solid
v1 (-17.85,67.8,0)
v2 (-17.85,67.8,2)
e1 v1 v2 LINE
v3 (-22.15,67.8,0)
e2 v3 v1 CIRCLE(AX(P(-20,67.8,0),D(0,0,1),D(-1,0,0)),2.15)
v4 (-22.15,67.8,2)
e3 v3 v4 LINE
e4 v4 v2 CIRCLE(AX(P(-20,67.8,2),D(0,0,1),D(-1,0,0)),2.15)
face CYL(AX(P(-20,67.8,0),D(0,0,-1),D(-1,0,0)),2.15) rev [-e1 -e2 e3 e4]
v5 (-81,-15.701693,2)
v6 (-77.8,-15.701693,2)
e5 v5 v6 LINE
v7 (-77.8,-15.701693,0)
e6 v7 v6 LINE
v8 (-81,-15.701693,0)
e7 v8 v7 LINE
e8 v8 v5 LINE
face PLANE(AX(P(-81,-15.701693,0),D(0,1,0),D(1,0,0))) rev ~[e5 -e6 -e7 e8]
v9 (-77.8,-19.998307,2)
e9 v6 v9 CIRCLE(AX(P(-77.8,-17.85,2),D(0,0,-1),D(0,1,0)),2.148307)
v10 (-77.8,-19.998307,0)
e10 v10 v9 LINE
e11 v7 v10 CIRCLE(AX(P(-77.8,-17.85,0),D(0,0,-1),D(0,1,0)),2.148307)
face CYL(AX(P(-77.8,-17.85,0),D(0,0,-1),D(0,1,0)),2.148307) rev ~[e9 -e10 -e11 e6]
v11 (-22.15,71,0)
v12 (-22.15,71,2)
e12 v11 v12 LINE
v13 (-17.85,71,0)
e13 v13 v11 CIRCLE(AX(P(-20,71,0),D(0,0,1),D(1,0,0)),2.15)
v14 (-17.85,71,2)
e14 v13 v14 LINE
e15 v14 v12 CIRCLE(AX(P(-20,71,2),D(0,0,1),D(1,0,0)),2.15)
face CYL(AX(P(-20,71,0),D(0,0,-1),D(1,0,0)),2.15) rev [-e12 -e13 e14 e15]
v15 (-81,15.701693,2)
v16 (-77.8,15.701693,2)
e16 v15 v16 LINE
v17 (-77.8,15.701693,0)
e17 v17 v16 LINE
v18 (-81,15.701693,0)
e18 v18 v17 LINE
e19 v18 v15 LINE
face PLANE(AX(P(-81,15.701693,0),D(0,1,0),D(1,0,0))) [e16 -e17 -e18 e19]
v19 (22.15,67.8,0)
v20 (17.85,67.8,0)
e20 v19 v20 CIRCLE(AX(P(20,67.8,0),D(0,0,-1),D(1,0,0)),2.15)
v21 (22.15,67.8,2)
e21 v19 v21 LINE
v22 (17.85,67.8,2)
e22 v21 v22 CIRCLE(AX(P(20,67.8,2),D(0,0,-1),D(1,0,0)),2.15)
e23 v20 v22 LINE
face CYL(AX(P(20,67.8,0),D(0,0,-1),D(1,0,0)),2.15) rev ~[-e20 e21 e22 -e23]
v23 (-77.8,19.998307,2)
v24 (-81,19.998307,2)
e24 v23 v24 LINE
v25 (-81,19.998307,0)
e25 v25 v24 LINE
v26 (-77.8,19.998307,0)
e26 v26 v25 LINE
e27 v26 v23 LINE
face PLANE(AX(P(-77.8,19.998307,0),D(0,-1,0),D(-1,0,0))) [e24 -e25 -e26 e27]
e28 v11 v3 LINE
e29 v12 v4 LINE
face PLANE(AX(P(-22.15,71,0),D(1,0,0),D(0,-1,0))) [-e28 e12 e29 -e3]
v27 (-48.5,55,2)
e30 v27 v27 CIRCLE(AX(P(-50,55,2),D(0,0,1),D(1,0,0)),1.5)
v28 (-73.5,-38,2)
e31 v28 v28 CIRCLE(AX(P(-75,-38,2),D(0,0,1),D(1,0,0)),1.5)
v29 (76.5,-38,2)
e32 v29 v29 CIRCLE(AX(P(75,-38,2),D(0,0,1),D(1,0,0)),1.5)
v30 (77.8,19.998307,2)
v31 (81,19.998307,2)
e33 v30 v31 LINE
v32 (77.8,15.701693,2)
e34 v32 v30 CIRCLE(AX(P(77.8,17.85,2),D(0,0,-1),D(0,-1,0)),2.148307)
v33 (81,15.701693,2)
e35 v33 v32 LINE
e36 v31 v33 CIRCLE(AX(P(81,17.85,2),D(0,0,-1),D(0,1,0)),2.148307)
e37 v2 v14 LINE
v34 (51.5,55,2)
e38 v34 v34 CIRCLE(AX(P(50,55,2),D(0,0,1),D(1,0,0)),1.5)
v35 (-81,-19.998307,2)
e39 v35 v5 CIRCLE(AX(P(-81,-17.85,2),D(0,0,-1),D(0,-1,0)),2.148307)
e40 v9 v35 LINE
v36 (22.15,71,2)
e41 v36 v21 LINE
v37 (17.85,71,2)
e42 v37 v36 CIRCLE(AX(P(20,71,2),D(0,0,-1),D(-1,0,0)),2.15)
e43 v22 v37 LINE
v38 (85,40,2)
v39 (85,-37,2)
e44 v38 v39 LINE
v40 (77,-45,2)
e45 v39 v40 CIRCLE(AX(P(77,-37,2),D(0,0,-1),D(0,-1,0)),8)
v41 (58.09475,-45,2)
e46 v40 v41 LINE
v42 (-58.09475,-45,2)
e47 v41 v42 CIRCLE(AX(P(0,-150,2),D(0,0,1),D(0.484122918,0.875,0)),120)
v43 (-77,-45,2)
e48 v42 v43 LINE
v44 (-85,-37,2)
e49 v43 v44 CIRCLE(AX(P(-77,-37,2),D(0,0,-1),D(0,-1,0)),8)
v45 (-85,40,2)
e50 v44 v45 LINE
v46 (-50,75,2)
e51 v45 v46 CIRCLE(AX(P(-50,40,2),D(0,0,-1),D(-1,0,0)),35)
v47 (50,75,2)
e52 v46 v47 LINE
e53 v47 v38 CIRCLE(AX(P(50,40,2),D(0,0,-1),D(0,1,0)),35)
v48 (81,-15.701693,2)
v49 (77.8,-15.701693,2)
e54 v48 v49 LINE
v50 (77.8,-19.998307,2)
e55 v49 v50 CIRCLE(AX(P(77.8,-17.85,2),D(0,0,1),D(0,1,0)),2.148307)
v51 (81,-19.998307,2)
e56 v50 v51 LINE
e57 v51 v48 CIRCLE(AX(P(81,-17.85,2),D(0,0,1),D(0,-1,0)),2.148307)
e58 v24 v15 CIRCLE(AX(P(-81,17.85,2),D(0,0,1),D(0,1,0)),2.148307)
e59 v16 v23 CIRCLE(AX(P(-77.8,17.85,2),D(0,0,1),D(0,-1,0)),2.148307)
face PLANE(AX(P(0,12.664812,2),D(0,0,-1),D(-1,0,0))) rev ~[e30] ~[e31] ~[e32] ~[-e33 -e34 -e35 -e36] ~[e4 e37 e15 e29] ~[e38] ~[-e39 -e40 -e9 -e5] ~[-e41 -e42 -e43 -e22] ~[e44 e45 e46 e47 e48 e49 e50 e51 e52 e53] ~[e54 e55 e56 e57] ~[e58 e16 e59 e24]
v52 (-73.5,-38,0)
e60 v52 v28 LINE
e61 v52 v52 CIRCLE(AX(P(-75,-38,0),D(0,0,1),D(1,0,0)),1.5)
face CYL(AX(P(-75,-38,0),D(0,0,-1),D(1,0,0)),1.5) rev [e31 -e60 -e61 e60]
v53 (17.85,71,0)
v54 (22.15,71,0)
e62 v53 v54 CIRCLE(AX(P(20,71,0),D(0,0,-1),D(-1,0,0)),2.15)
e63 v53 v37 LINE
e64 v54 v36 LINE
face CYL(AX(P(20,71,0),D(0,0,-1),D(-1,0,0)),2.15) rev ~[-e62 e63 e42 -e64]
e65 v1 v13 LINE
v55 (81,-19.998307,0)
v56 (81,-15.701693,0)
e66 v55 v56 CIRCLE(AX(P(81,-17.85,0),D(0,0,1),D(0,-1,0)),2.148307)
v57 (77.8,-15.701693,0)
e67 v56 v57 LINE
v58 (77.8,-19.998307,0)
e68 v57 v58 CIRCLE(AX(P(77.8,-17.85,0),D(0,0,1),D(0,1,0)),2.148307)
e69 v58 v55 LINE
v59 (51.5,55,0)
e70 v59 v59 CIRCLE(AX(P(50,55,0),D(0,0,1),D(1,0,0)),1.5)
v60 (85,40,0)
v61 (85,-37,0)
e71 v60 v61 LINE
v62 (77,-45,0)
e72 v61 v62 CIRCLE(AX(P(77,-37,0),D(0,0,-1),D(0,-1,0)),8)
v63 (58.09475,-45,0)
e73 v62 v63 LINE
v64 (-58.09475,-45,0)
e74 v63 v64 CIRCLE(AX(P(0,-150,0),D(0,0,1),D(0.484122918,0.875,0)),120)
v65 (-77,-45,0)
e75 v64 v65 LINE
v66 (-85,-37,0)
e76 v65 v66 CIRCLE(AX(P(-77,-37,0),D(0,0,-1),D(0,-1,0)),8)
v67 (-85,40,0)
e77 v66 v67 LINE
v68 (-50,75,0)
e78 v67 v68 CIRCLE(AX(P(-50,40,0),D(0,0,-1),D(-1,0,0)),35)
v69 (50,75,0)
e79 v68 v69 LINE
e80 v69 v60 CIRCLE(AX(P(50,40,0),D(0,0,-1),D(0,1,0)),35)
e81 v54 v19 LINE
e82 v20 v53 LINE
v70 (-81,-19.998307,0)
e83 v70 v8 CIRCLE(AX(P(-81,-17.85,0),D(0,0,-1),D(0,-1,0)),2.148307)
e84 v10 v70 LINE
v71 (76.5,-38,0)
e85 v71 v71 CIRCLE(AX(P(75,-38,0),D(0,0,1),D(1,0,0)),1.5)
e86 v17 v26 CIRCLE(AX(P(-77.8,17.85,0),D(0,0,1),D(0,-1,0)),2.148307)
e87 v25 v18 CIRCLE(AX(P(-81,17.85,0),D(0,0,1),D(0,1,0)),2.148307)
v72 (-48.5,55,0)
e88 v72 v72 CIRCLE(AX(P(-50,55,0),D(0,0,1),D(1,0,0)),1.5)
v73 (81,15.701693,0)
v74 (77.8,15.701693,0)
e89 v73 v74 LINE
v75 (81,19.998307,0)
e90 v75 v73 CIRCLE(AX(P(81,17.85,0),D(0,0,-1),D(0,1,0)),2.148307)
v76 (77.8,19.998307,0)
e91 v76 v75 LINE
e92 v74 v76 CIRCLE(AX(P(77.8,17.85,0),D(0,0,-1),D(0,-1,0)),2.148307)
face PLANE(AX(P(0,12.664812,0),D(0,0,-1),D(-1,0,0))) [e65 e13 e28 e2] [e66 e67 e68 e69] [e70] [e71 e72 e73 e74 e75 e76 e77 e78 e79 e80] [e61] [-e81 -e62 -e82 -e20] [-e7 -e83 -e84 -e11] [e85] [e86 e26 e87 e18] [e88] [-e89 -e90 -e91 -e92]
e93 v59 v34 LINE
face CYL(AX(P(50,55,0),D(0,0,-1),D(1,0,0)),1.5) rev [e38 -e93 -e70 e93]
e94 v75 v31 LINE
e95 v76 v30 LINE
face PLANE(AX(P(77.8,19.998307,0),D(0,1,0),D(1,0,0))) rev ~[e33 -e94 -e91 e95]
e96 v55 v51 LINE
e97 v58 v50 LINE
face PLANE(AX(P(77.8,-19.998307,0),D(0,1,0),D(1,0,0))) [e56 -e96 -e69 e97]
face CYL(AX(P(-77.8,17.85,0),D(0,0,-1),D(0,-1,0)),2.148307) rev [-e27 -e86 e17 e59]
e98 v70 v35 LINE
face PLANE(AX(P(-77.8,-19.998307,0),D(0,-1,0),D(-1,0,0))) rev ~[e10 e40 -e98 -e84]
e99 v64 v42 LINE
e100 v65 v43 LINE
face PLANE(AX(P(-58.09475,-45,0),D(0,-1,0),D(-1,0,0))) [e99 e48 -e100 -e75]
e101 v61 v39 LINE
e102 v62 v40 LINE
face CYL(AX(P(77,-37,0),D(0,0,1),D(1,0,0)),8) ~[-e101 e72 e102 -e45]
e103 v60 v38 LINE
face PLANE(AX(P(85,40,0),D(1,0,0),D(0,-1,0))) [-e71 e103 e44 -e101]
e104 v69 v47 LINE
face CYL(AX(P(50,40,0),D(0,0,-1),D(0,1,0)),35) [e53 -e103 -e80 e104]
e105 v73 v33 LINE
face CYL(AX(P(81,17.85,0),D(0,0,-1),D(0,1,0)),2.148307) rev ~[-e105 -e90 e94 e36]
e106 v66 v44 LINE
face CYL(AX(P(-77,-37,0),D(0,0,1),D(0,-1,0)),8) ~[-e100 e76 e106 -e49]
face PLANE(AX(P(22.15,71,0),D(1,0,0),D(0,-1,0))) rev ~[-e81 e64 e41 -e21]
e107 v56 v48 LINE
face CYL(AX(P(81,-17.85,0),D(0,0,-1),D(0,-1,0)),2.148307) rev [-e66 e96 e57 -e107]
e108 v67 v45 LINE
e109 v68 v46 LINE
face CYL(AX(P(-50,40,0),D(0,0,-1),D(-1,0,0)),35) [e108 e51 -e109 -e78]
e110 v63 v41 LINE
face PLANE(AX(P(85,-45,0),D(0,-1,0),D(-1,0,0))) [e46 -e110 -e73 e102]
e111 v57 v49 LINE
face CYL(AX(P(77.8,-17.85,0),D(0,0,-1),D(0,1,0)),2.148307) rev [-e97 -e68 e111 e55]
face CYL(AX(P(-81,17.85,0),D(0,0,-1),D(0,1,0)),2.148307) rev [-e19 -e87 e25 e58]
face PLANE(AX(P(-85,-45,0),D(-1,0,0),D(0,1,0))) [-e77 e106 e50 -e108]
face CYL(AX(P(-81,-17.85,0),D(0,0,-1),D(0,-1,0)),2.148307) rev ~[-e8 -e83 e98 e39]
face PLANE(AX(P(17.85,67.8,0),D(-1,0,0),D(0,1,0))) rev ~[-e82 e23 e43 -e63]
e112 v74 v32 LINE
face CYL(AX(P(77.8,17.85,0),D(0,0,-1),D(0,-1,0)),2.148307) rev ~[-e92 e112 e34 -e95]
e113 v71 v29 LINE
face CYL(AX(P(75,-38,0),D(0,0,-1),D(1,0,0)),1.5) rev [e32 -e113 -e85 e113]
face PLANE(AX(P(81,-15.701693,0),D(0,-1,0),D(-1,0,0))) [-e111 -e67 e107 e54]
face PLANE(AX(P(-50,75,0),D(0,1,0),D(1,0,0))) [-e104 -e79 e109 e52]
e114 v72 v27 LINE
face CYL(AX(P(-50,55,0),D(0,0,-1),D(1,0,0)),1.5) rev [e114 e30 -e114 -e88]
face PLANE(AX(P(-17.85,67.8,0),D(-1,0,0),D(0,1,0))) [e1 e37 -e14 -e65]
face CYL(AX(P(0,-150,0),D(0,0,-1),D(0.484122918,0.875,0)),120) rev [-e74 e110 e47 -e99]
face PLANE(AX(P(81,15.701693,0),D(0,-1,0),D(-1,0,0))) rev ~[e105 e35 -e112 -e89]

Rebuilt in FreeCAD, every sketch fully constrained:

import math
import FreeCAD as App
import Part
import Sketcher


def edges_at(feature, points):
    """Names of the edges that pass closest to the given points."""
    edges = feature.Shape.Edges
    near = lambda p: min(range(len(edges)), key=lambda i: edges[i].distToShape(Part.Vertex(*p))[0])
    return sorted({f"Edge{near(p) + 1}" for p in points})

doc = App.newDocument("Part")
body = doc.addObject("PartDesign::Body", "Body")

sketch1 = body.newObject("Sketcher::SketchObject", "Sketch")
sketch1.AttachmentSupport = (doc.getObject("XY_Plane"), [""])
sketch1.MapMode = "FlatFace"
sketch1.addGeometry([
    Part.LineSegment(App.Vector(85, -45, 0), App.Vector(85, 40, 0)),
    Part.ArcOfCircle(Part.Circle(App.Vector(50, 40, 0), App.Vector(0, 0, 1), 35), math.radians(0), math.radians(90)),
    Part.LineSegment(App.Vector(50, 75, 0), App.Vector(-50, 75, 0)),
    Part.ArcOfCircle(Part.Circle(App.Vector(-50, 40, 0), App.Vector(0, 0, 1), 35), math.radians(90), math.radians(180)),
    Part.LineSegment(App.Vector(-85, 40, 0), App.Vector(-85, -45, 0)),
    Part.LineSegment(App.Vector(-85, -45, 0), App.Vector(-58.1, -45, 0)),
    Part.ArcOfCircle(Part.Circle(App.Vector(0, -150, 0), App.Vector(0, 0, 1), 120), math.radians(61), math.radians(119)),
    Part.LineSegment(App.Vector(58.1, -45, 0), App.Vector(85, -45, 0)),
    Part.Circle(App.Vector(75, -38, 0), App.Vector(0, 0, 1), 1.5),
    Part.LineSegment(App.Vector(77.8, -15.7, 0), App.Vector(81, -15.7, 0)),
    Part.ArcOfCircle(Part.Circle(App.Vector(81, -17.9, 0), App.Vector(0, 0, 1), 2.1), math.radians(-90), math.radians(90)),
    Part.LineSegment(App.Vector(81, -20, 0), App.Vector(77.8, -20, 0)),
    Part.ArcOfCircle(Part.Circle(App.Vector(77.8, -17.9, 0), App.Vector(0, 0, 1), 2.1), math.radians(90), math.radians(270)),
    Part.Circle(App.Vector(-75, -38, 0), App.Vector(0, 0, 1), 1.5),
    Part.LineSegment(App.Vector(-81, -15.7, 0), App.Vector(-77.8, -15.7, 0)),
    Part.ArcOfCircle(Part.Circle(App.Vector(-77.8, -17.9, 0), App.Vector(0, 0, 1), 2.1), math.radians(-90), math.radians(90)),
    Part.LineSegment(App.Vector(-77.8, -20, 0), App.Vector(-81, -20, 0)),
    Part.ArcOfCircle(Part.Circle(App.Vector(-81, -17.9, 0), App.Vector(0, 0, 1), 2.1), math.radians(90), math.radians(270)),
    Part.LineSegment(App.Vector(81, 15.7, 0), App.Vector(77.8, 15.7, 0)),
    Part.ArcOfCircle(Part.Circle(App.Vector(77.8, 17.9, 0), App.Vector(0, 0, 1), 2.1), math.radians(90), math.radians(270)),
    Part.LineSegment(App.Vector(77.8, 20, 0), App.Vector(81, 20, 0)),
    Part.ArcOfCircle(Part.Circle(App.Vector(81, 17.9, 0), App.Vector(0, 0, 1), 2.1), math.radians(-90), math.radians(90)),
    Part.Circle(App.Vector(50, 55, 0), App.Vector(0, 0, 1), 1.5),
    Part.LineSegment(App.Vector(22.1, 71, 0), App.Vector(22.1, 67.8, 0)),
    Part.ArcOfCircle(Part.Circle(App.Vector(20, 67.8, 0), App.Vector(0, 0, 1), 2.1), math.radians(180), math.radians(360)),
    Part.LineSegment(App.Vector(17.9, 67.8, 0), App.Vector(17.9, 71, 0)),
    Part.ArcOfCircle(Part.Circle(App.Vector(20, 71, 0), App.Vector(0, 0, 1), 2.1), math.radians(0), math.radians(180)),
    Part.LineSegment(App.Vector(-77.8, 15.7, 0), App.Vector(-81, 15.7, 0)),
    Part.ArcOfCircle(Part.Circle(App.Vector(-81, 17.9, 0), App.Vector(0, 0, 1), 2.1), math.radians(90), math.radians(270)),
    Part.LineSegment(App.Vector(-81, 20, 0), App.Vector(-77.8, 20, 0)),
    Part.ArcOfCircle(Part.Circle(App.Vector(-77.8, 17.9, 0), App.Vector(0, 0, 1), 2.1), math.radians(-90), math.radians(90)),
    Part.LineSegment(App.Vector(-22.1, 67.8, 0), App.Vector(-22.1, 71, 0)),
    Part.ArcOfCircle(Part.Circle(App.Vector(-20, 71, 0), App.Vector(0, 0, 1), 2.1), math.radians(0), math.radians(180)),
    Part.LineSegment(App.Vector(-17.9, 71, 0), App.Vector(-17.9, 67.8, 0)),
    Part.ArcOfCircle(Part.Circle(App.Vector(-20, 67.8, 0), App.Vector(0, 0, 1), 2.1), math.radians(180), math.radians(360)),
    Part.Circle(App.Vector(-50, 55, 0), App.Vector(0, 0, 1), 1.5),
], False)
sketch1.addConstraint([
    Sketcher.Constraint("Tangent", 0, 2, 1, 1),
    Sketcher.Constraint("Tangent", 1, 2, 2, 1),
    Sketcher.Constraint("Tangent", 2, 2, 3, 1),
    Sketcher.Constraint("Tangent", 3, 2, 4, 1),
    Sketcher.Constraint("Coincident", 4, 2, 5, 1),
    Sketcher.Constraint("Coincident", 5, 2, 6, 2),
    Sketcher.Constraint("Coincident", 6, 1, 7, 1),
    Sketcher.Constraint("Coincident", 7, 2, 0, 1),
    Sketcher.Constraint("Tangent", 9, 2, 10, 2),
    Sketcher.Constraint("Tangent", 10, 1, 11, 1),
    Sketcher.Constraint("Tangent", 11, 2, 12, 2),
    Sketcher.Constraint("Tangent", 12, 1, 9, 1),
    Sketcher.Constraint("Tangent", 14, 2, 15, 2),
    Sketcher.Constraint("Tangent", 15, 1, 16, 1),
    Sketcher.Constraint("Tangent", 16, 2, 17, 2),
    Sketcher.Constraint("Tangent", 17, 1, 14, 1),
    Sketcher.Constraint("Tangent", 18, 2, 19, 2),
    Sketcher.Constraint("Tangent", 19, 1, 20, 1),
    Sketcher.Constraint("Tangent", 20, 2, 21, 2),
    Sketcher.Constraint("Tangent", 21, 1, 18, 1),
    Sketcher.Constraint("Tangent", 23, 2, 24, 2),
    Sketcher.Constraint("Tangent", 24, 1, 25, 1),
    Sketcher.Constraint("Tangent", 25, 2, 26, 2),
    Sketcher.Constraint("Tangent", 26, 1, 23, 1),
    Sketcher.Constraint("Tangent", 27, 2, 28, 2),
    Sketcher.Constraint("Tangent", 28, 1, 29, 1),
    Sketcher.Constraint("Tangent", 29, 2, 30, 2),
    Sketcher.Constraint("Tangent", 30, 1, 27, 1),
    Sketcher.Constraint("Tangent", 31, 2, 32, 2),
    Sketcher.Constraint("Tangent", 32, 1, 33, 1),
    Sketcher.Constraint("Tangent", 33, 2, 34, 2),
    Sketcher.Constraint("Tangent", 34, 1, 31, 1),
    Sketcher.Constraint("Vertical", 0),
    Sketcher.Constraint("Horizontal", 2),
    Sketcher.Constraint("Vertical", 4),
    Sketcher.Constraint("Horizontal", 5),
    Sketcher.Constraint("Horizontal", 7),
    Sketcher.Constraint("Horizontal", 9),
    Sketcher.Constraint("Horizontal", 11),
    Sketcher.Constraint("Horizontal", 14),
    Sketcher.Constraint("Horizontal", 16),
    Sketcher.Constraint("Horizontal", 18),
    Sketcher.Constraint("Horizontal", 20),
    Sketcher.Constraint("Vertical", 23),
    Sketcher.Constraint("Vertical", 25),
    Sketcher.Constraint("Horizontal", 27),
    Sketcher.Constraint("Horizontal", 29),
    Sketcher.Constraint("Vertical", 31),
    Sketcher.Constraint("Vertical", 33),
    Sketcher.Constraint("Equal", 1, 3),
    Sketcher.Constraint("Equal", 8, 13),
    Sketcher.Constraint("Equal", 12, 15),
    Sketcher.Constraint("Equal", 17, 19),
    Sketcher.Constraint("Equal", 13, 22),
    Sketcher.Constraint("Equal", 21, 28),
    Sketcher.Constraint("Equal", 26, 32),
    Sketcher.Constraint("Equal", 22, 35),
    Sketcher.Constraint("Symmetric", 15, 3, 19, 3, -1, 1),
    Sketcher.Constraint("Symmetric", 10, 3, 28, 3, -1, 1),
    Sketcher.Constraint("Symmetric", 8, 3, 13, 3, -2),
    Sketcher.Constraint("Symmetric", 12, 3, 15, 3, -2),
    Sketcher.Constraint("Symmetric", 26, 3, 32, 3, -2),
    Sketcher.Constraint("Symmetric", 22, 3, 35, 3, -2),
    Sketcher.Constraint("Symmetric", 5, 2, 6, 1, -2),
    Sketcher.Constraint("Horizontal", 24, 3, 34, 3),
    Sketcher.Constraint("Vertical", 10, 3, 21, 3),
    Sketcher.Constraint("Vertical", 1, 3, 22, 3),
    Sketcher.Constraint("Vertical", 17, 3, 28, 3),
    Sketcher.Constraint("Vertical", 15, 3, 30, 3),
    Sketcher.Constraint("Vertical", 3, 3, 35, 3),
    Sketcher.Constraint("Equal", 29, 23),
    Sketcher.Constraint("Diameter", 8, 3.0),
    Sketcher.Constraint("Radius", 1, 35.0),
    Sketcher.Constraint("Radius", 6, 120.0),
    Sketcher.Constraint("DistanceX", 2, 2, 2, 1, 100.0),
    Sketcher.Constraint("DistanceY", 0, 1, 0, 2, 85.0),
    Sketcher.Constraint("Radius", 24, 2.15),
    Sketcher.Constraint("DistanceX", 9, 1, 9, 2, 3.2),
    Sketcher.Constraint("DistanceY", -1, 1, 1, 3, 40.0),
    Sketcher.Constraint("DistanceY", 6, 3, -1, 1, 150.0),
    Sketcher.Constraint("DistanceX", -1, 1, 8, 3, 75.0),
    Sketcher.Constraint("DistanceY", 8, 3, -1, 1, 38.0),
    Sketcher.Constraint("DistanceX", -1, 1, 10, 3, 81.0),
    Sketcher.Constraint("DistanceY", -1, 1, 22, 3, 55.0),
    Sketcher.Constraint("DistanceX", -1, 1, 24, 3, 20.0),
    Sketcher.Constraint("DistanceY", -1, 1, 26, 3, 71.0),
    Sketcher.Constraint("DistanceY", 12, 3, 19, 3, 35.7),
    Sketcher.Constraint("Radius", 10, 2.148307),
])
pad1 = body.newObject("PartDesign::Pad", "Pad")
pad1.Profile = sketch1
pad1.Length = 2
doc.recompute()

fillet = body.newObject("PartDesign::Fillet", "Fillet")
fillet.Base = (pad1, edges_at(pad1, [(85, -45, 1), (-85, -45, 1)]))
fillet.Radius = 8

doc.recompute()
